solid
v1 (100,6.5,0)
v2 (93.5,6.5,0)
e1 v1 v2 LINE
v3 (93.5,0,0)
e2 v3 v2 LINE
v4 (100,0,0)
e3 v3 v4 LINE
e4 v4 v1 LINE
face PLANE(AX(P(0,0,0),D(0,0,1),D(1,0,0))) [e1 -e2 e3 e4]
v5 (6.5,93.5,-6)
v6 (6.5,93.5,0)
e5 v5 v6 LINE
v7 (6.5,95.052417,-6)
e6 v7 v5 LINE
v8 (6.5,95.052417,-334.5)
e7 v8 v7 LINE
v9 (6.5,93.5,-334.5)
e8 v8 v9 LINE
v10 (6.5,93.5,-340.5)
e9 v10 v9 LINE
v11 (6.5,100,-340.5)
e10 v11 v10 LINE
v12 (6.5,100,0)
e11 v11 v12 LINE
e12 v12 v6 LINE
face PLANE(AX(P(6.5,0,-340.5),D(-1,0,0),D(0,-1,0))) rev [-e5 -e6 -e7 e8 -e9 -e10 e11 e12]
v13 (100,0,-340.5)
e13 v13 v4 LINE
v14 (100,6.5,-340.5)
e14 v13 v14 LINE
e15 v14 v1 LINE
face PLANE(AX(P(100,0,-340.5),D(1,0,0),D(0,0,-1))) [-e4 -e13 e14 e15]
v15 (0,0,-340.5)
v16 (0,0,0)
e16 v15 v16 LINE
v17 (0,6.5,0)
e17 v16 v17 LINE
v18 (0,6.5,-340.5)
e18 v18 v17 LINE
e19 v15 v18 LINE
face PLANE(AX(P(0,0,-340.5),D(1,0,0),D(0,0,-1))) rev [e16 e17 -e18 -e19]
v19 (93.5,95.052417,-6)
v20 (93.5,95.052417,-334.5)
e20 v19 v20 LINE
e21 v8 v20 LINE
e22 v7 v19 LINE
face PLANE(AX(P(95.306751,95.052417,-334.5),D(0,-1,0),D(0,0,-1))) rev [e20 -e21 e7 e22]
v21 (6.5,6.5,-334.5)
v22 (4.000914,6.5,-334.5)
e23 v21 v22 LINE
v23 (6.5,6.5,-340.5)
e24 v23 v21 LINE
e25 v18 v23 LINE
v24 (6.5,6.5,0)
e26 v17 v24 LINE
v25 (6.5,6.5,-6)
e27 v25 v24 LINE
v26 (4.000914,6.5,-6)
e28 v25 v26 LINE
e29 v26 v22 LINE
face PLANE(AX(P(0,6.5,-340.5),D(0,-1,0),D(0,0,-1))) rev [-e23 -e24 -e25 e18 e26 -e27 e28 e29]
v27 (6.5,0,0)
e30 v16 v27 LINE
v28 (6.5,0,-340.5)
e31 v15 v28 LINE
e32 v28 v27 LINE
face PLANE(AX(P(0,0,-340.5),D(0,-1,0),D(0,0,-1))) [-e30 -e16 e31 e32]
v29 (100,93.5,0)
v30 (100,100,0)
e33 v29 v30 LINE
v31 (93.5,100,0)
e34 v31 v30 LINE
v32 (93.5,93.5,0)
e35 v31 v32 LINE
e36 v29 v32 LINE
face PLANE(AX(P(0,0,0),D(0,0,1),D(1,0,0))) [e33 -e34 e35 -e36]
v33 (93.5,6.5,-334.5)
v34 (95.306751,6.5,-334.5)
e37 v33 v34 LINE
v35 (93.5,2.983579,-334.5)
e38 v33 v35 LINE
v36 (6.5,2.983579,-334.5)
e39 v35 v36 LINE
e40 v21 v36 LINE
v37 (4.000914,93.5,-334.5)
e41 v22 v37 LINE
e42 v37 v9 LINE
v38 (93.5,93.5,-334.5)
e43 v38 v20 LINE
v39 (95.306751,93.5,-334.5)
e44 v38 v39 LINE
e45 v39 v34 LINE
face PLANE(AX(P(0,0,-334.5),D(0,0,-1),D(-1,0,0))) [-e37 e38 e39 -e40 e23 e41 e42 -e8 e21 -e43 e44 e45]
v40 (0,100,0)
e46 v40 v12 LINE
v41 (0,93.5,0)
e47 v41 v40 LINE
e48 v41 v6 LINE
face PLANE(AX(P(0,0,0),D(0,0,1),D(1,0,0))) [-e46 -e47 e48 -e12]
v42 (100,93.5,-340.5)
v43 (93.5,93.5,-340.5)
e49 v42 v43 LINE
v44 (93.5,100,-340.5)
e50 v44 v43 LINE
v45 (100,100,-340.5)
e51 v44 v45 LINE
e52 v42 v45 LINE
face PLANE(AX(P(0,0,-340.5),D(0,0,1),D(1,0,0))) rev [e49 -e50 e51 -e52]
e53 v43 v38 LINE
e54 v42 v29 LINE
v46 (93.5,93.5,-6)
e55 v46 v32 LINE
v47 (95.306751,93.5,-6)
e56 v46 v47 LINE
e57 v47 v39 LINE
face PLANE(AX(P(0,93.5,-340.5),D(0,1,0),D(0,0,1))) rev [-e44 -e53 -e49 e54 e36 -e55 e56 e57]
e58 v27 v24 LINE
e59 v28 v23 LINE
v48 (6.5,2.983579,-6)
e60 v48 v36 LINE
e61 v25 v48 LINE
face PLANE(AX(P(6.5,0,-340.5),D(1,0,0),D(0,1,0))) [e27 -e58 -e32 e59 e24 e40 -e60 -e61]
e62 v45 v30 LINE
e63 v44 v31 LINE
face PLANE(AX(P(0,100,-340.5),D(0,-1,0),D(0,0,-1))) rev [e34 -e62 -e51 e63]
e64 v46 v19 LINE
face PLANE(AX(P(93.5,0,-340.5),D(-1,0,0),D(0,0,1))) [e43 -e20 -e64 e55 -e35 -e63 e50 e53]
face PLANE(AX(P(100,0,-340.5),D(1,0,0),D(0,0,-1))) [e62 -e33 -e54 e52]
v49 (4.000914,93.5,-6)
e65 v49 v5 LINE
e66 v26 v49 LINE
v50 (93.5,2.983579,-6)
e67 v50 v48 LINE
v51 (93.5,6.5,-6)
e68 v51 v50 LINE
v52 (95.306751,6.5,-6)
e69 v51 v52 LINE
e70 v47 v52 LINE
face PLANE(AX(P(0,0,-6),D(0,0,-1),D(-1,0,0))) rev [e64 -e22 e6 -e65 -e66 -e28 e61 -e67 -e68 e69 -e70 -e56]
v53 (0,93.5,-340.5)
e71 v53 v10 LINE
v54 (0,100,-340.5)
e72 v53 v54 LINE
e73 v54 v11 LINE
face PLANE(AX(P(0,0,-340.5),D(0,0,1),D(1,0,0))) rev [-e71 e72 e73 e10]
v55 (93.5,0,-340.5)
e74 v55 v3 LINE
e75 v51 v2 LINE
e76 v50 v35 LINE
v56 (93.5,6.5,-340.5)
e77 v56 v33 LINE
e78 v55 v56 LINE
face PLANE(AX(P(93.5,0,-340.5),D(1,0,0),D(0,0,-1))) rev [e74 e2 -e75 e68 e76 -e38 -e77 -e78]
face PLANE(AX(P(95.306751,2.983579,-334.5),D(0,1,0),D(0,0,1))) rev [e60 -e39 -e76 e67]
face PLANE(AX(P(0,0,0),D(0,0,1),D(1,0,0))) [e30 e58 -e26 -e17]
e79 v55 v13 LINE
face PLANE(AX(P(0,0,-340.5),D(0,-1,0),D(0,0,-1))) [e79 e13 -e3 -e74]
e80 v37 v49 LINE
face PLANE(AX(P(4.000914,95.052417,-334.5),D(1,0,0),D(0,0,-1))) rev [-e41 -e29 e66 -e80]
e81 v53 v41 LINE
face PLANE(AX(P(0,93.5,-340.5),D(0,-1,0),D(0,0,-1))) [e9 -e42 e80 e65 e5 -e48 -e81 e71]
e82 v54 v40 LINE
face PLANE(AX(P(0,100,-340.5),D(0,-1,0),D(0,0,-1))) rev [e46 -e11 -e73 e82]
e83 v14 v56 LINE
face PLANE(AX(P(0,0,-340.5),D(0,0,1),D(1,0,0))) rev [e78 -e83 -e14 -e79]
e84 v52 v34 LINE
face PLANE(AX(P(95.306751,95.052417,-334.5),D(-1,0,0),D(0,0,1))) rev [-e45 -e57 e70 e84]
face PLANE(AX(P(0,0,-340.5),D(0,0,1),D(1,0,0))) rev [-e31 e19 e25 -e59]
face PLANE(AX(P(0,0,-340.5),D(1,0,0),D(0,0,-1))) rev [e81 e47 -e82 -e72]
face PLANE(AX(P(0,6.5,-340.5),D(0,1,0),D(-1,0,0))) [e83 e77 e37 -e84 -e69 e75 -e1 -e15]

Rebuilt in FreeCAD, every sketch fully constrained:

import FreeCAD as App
import Part
import Sketcher

V = App.Vector
Q = App.Units.Quantity

doc = App.newDocument("Part")
body = doc.addObject("PartDesign::Body", "Body")

# Sketch on XY plane
sketch1 = doc.addObject("Sketcher::SketchObject", "Sketch")
body.addObject(sketch1)
sketch1.AttachmentSupport = (doc.XY_Plane, [""])
sketch1.MapMode = "FlatFace"
sketch1.addGeometry([
    Part.LineSegment(V(0, 100, 0), V(0, 94, 0)),
    Part.LineSegment(V(0, 94, 0), V(6, 94, 0)),
    Part.LineSegment(V(6, 94, 0), V(6, 100, 0)),
    Part.LineSegment(V(6, 100, 0), V(0, 100, 0)),
], False)
sketch1.addConstraint([
    Sketcher.Constraint("Coincident", 0, 2, 1, 1),
    Sketcher.Constraint("Coincident", 1, 2, 2, 1),
    Sketcher.Constraint("Coincident", 2, 2, 3, 1),
    Sketcher.Constraint("Coincident", 3, 2, 0, 1),
    Sketcher.Constraint("Vertical", 0),
    Sketcher.Constraint("Horizontal", 1),
    Sketcher.Constraint("Vertical", 2),
    Sketcher.Constraint("Horizontal", 3),
    Sketcher.Constraint("PointOnObject", 0, 2, -2),
    Sketcher.Constraint("Equal", 3, 0),
    Sketcher.Constraint("DistanceX", 1, 1, 1, 2, Q("6.5 mm")),
    Sketcher.Constraint("DistanceY", -1, 1, 2, 2, Q("100 mm")),
])
pad1 = doc.addObject("PartDesign::Pad", "Pad")
body.addObject(pad1)
pad1.Profile = sketch1
pad1.Length = 340.5
pad1.Reversed = True
body2 = doc.addObject("PartDesign::Body", "Body001")

# Sketch on XY plane
sketch2 = doc.addObject("Sketcher::SketchObject", "Sketch001")
body2.addObject(sketch2)
sketch2.AttachmentSupport = (doc.getObject("XY_Plane001"), [""])
sketch2.MapMode = "FlatFace"
sketch2.addGeometry([
    Part.LineSegment(V(94, 100, 0), V(94, 94, 0)),
    Part.LineSegment(V(94, 94, 0), V(100, 94, 0)),
    Part.LineSegment(V(100, 94, 0), V(100, 100, 0)),
    Part.LineSegment(V(100, 100, 0), V(94, 100, 0)),
], False)
sketch2.addConstraint([
    Sketcher.Constraint("Coincident", 0, 2, 1, 1),
    Sketcher.Constraint("Coincident", 1, 2, 2, 1),
    Sketcher.Constraint("Coincident", 2, 2, 3, 1),
    Sketcher.Constraint("Coincident", 3, 2, 0, 1),
    Sketcher.Constraint("Vertical", 0),
    Sketcher.Constraint("Horizontal", 1),
    Sketcher.Constraint("Vertical", 2),
    Sketcher.Constraint("Horizontal", 3),
    Sketcher.Constraint("Equal", 3, 0),
    Sketcher.Constraint("DistanceX", 1, 1, 1, 2, Q("6.5 mm")),
    Sketcher.Constraint("DistanceX", -1, 1, 1, 2, Q("100 mm")),
    Sketcher.Constraint("DistanceY", -1, 1, 2, 2, Q("100 mm")),
])
pad2 = doc.addObject("PartDesign::Pad", "Pad001")
body2.addObject(pad2)
pad2.Profile = sketch2
pad2.Length = 340.5
pad2.Reversed = True
body3 = doc.addObject("PartDesign::Body", "Body002")

# Sketch on XY plane
sketch3 = doc.addObject("Sketcher::SketchObject", "Sketch002")
body3.addObject(sketch3)
sketch3.AttachmentSupport = (doc.getObject("XY_Plane002"), [""])
sketch3.MapMode = "FlatFace"
sketch3.addGeometry([
    Part.LineSegment(V(94, 6, 0), V(94, 0, 0)),
    Part.LineSegment(V(94, 0, 0), V(100, 0, 0)),
    Part.LineSegment(V(100, 0, 0), V(100, 6, 0)),
    Part.LineSegment(V(100, 6, 0), V(94, 6, 0)),
], False)
sketch3.addConstraint([
    Sketcher.Constraint("Coincident", 0, 2, 1, 1),
    Sketcher.Constraint("Coincident", 1, 2, 2, 1),
    Sketcher.Constraint("Coincident", 2, 2, 3, 1),
    Sketcher.Constraint("Coincident", 3, 2, 0, 1),
    Sketcher.Constraint("Vertical", 0),
    Sketcher.Constraint("Horizontal", 1),
    Sketcher.Constraint("Vertical", 2),
    Sketcher.Constraint("Horizontal", 3),
    Sketcher.Constraint("PointOnObject", 0, 2, -1),
    Sketcher.Constraint("Equal", 3, 0),
    Sketcher.Constraint("DistanceX", 1, 1, 1, 2, Q("6.5 mm")),
    Sketcher.Constraint("DistanceX", -1, 1, 1, 2, Q("100 mm")),
])
pad3 = doc.addObject("PartDesign::Pad", "Pad002")
body3.addObject(pad3)
pad3.Profile = sketch3
pad3.Length = 340.5
pad3.Reversed = True
body4 = doc.addObject("PartDesign::Body", "Body003")

# Sketch on XY plane
sketch4 = doc.addObject("Sketcher::SketchObject", "Sketch003")
body4.addObject(sketch4)
sketch4.AttachmentSupport = (doc.getObject("XY_Plane003"), [""])
sketch4.MapMode = "FlatFace"
sketch4.addGeometry([
    Part.LineSegment(V(0, 6, 0), V(0, 0, 0)),
    Part.LineSegment(V(0, 0, 0), V(6, 0, 0)),
    Part.LineSegment(V(6, 0, 0), V(6, 6, 0)),
    Part.LineSegment(V(6, 6, 0), V(0, 6, 0)),
], False)
sketch4.addConstraint([
    Sketcher.Constraint("Coincident", 0, 2, 1, 1),
    Sketcher.Constraint("Coincident", 1, 2, 2, 1),
    Sketcher.Constraint("Coincident", 2, 2, 3, 1),
    Sketcher.Constraint("Coincident", 3, 2, 0, 1),
    Sketcher.Constraint("Vertical", 0),
    Sketcher.Constraint("Horizontal", 1),
    Sketcher.Constraint("Vertical", 2),
    Sketcher.Constraint("Horizontal", 3),
    Sketcher.Constraint("Coincident", 0, 2, -1, 1),
    Sketcher.Constraint("Equal", 3, 0),
    Sketcher.Constraint("DistanceX", 1, 1, 1, 2, Q("6.5 mm")),
])
pad4 = doc.addObject("PartDesign::Pad", "Pad003")
body4.addObject(pad4)
pad4.Profile = sketch4
pad4.Length = 340.5
pad4.Reversed = True
body.AllowCompound = True
doc.recompute()

boolean = doc.addObject("PartDesign::Boolean", "Boolean")
body.addObject(boolean)
boolean.Type = "Fuse"
boolean.addObjects([body2])
doc.recompute()

boolean2 = doc.addObject("PartDesign::Boolean", "Boolean001")
body.addObject(boolean2)
boolean2.Type = "Fuse"
boolean2.addObjects([body3])
doc.recompute()

boolean3 = doc.addObject("PartDesign::Boolean", "Boolean002")
body.addObject(boolean3)
boolean3.Type = "Fuse"
boolean3.addObjects([body4])

# Sketch on XY plane
sketch5 = doc.addObject("Sketcher::SketchObject", "Sketch004")
body.addObject(sketch5)
sketch5.AttachmentSupport = (doc.XY_Plane, [""])
sketch5.MapMode = "FlatFace"
sketch5.AttachmentOffset = App.Placement(V(0, 0, -6), App.Rotation())
sketch5.addGeometry([
    Part.LineSegment(V(95, 95, 0), V(95, 3, 0)),
    Part.LineSegment(V(95, 3, 0), V(4, 3, 0)),
    Part.LineSegment(V(4, 3, 0), V(4, 95, 0)),
    Part.LineSegment(V(4, 95, 0), V(95, 95, 0)),
], False)
sketch5.addConstraint([
    Sketcher.Constraint("Coincident", 0, 2, 1, 1),
    Sketcher.Constraint("Coincident", 1, 2, 2, 1),
    Sketcher.Constraint("Coincident", 2, 2, 3, 1),
    Sketcher.Constraint("Coincident", 3, 2, 0, 1),
    Sketcher.Constraint("Vertical", 0),
    Sketcher.Constraint("Horizontal", 1),
    Sketcher.Constraint("Vertical", 2),
    Sketcher.Constraint("Horizontal", 3),
    Sketcher.Constraint("DistanceX", 1, 2, 1, 1, Q("91.305836 mm")),
    Sketcher.Constraint("DistanceY", 0, 2, 0, 1, Q("92.068838 mm")),
    Sketcher.Constraint("DistanceX", -1, 1, 0, 2, Q("95.306751 mm")),
    Sketcher.Constraint("DistanceY", -1, 1, 0, 2, Q("2.983579 mm")),
])
pad5 = doc.addObject("PartDesign::Pad", "Pad004")
body.addObject(pad5)
pad5.Profile = sketch5
pad5.Length = 328.5
pad5.Reversed = True

doc.recompute()
